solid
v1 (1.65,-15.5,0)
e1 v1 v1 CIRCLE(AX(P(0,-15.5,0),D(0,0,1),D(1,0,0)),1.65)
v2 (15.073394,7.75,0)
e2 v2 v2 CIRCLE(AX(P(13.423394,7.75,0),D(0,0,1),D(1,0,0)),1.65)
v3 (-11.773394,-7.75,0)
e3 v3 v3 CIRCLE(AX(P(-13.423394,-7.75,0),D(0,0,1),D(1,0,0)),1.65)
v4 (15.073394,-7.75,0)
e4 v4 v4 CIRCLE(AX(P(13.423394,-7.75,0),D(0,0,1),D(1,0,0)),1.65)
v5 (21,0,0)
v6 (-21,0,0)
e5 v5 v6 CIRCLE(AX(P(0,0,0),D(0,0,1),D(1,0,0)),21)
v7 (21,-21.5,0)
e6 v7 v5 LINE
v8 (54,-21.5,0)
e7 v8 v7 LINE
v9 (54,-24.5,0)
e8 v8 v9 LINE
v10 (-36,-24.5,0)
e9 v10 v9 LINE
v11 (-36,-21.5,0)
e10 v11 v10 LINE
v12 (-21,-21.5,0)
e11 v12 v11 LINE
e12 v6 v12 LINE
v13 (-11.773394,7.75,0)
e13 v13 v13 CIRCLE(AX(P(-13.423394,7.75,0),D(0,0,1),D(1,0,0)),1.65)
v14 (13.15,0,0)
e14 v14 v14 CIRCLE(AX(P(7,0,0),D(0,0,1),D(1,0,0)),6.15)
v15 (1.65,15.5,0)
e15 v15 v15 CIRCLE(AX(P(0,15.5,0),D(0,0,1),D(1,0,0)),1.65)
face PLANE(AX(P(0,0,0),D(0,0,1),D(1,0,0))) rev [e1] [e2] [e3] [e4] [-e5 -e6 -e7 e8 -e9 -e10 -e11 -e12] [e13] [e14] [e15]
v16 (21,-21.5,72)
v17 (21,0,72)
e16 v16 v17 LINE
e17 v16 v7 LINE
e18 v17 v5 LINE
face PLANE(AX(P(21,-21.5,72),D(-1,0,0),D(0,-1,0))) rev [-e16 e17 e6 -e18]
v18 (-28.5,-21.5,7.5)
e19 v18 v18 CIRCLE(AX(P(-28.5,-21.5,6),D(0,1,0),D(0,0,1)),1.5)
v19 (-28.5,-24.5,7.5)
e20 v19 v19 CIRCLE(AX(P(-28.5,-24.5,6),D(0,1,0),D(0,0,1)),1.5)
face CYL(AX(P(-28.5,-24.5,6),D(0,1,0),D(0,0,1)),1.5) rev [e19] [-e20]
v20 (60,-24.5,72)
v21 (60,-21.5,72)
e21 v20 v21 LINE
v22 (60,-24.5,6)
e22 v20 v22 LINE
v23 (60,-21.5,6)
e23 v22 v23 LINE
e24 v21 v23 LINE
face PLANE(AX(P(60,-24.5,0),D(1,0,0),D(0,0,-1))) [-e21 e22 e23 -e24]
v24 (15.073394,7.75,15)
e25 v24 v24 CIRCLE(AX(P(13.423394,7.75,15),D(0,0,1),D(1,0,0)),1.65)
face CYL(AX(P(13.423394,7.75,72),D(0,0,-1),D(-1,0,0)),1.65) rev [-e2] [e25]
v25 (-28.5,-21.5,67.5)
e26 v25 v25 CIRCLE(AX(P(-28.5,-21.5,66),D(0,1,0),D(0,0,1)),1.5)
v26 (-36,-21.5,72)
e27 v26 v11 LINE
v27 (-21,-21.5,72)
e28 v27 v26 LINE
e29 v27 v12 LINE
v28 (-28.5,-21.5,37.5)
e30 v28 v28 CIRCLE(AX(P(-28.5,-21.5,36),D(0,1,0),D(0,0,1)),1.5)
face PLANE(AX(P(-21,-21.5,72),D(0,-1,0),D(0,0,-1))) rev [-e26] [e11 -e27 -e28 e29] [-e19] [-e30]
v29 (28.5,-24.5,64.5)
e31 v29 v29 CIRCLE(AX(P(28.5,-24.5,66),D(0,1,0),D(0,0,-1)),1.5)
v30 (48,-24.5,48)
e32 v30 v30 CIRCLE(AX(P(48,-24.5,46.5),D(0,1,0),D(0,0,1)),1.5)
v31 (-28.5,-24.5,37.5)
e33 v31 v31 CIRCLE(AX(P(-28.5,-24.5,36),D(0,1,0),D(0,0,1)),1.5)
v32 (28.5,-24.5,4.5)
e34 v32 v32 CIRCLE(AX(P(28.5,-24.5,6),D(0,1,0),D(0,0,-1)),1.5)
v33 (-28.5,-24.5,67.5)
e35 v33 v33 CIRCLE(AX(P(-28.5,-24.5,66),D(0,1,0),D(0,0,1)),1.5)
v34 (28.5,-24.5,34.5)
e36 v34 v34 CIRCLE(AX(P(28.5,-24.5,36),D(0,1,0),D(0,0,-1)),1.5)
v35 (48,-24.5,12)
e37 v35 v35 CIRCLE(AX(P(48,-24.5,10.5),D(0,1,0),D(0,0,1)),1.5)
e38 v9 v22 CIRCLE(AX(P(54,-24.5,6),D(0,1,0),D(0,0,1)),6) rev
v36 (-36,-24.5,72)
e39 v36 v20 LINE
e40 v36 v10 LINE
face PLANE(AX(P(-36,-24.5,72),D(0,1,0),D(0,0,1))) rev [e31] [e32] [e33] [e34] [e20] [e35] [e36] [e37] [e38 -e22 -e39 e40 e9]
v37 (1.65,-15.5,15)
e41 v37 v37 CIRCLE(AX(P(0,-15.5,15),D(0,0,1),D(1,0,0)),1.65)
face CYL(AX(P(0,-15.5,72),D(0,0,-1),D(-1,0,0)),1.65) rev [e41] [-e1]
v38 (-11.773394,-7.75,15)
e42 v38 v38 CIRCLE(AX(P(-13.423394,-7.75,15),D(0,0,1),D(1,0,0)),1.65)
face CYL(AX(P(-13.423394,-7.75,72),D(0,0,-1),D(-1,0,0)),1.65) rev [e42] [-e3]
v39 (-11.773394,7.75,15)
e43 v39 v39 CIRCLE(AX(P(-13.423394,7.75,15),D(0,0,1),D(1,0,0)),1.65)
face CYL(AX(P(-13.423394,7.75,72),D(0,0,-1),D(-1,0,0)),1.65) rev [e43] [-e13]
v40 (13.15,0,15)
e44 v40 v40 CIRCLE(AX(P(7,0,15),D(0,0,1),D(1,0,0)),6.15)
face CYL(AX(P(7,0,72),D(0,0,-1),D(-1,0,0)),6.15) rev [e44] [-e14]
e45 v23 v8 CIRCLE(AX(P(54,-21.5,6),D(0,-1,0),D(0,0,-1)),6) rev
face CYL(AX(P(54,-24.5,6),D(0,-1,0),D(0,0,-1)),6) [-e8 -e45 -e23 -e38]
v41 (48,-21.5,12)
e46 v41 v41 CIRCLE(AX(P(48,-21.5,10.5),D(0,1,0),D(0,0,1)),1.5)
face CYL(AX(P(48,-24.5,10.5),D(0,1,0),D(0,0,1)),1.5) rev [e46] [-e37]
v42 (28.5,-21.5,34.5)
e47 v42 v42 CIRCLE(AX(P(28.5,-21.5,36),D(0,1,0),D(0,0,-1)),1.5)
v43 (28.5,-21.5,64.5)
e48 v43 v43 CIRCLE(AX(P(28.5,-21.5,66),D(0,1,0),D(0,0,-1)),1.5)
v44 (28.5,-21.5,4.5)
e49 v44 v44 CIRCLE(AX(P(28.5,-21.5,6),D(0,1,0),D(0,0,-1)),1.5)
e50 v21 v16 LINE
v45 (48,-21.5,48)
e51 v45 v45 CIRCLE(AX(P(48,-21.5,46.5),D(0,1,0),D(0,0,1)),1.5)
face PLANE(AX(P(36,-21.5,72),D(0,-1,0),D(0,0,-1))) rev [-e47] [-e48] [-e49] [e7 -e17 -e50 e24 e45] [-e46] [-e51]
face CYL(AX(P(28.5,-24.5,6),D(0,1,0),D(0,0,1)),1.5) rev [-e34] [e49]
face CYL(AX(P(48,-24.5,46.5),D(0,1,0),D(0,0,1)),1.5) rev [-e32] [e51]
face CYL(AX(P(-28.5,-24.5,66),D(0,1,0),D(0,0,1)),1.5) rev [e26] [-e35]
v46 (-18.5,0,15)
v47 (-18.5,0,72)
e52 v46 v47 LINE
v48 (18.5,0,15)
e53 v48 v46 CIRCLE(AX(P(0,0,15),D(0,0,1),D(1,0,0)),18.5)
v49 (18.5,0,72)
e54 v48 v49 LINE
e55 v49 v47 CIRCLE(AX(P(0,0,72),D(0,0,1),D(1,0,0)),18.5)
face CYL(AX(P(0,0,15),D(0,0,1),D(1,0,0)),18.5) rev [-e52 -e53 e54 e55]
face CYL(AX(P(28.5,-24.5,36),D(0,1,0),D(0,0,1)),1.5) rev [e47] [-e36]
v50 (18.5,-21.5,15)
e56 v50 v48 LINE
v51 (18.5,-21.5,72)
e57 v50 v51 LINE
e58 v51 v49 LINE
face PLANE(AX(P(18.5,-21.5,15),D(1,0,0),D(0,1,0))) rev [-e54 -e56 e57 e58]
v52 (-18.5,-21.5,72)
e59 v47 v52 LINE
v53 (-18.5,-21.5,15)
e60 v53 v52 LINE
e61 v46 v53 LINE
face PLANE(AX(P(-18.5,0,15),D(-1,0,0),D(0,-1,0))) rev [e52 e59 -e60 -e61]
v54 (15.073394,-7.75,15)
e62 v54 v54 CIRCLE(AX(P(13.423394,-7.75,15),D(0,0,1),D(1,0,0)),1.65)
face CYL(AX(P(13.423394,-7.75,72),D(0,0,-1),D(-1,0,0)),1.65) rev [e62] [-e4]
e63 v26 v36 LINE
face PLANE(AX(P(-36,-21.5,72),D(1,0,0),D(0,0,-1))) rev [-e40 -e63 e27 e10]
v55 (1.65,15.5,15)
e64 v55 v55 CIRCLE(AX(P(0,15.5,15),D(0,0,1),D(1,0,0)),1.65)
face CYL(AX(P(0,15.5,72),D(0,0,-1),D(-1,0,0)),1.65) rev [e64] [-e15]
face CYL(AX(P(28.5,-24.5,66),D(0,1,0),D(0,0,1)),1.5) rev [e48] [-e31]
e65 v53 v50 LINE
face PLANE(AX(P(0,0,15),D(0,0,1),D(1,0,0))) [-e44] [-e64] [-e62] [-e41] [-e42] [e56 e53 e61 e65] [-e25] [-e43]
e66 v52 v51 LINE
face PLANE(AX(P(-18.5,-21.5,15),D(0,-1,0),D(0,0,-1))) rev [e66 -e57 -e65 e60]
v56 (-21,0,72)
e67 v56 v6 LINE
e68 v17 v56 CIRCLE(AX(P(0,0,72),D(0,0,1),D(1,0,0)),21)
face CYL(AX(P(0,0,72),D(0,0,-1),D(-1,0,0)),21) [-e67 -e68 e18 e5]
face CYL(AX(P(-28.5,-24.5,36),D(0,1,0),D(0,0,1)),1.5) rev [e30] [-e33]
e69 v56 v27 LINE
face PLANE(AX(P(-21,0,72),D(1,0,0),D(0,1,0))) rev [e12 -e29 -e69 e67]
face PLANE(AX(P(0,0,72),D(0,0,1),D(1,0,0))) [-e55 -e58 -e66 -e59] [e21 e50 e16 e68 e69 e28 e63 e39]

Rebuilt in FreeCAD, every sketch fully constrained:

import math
import FreeCAD as App
import Part
import Sketcher
from FreeCAD import Vector


def edges_at(feature, points):
    """Names of the edges that pass closest to the given points."""
    edges = feature.Shape.Edges
    near = lambda p: min(range(len(edges)), key=lambda i: edges[i].distToShape(Part.Vertex(*p))[0])
    return sorted({f"Edge{near(p) + 1}" for p in points})


def add_polygon(sketch, points):
    """Adds a closed chain of lines whose ends are joined by coincident constraints."""
    first, n = sketch.GeometryCount, len(points)
    for a, b in zip(points, points[1:] + points[:1]):
        sketch.addGeometry(Part.LineSegment(App.Vector(*a, 0), App.Vector(*b, 0)), False)
    for i in range(n):
        sketch.addConstraint(Sketcher.Constraint("Coincident", first + i, 2, first + (i + 1) % n, 1))

doc = App.newDocument("Part")
params = doc.addObject("Spreadsheet::Sheet", "Params")
for row, (alias, value) in enumerate([
    ("sketch1_radius", "21 mm"),
    ("sketch1_diameter", "3.3 mm"),
    ("sketch1_diameter2", "12.3 mm"),
    ("sketch1_width", "15 mm"),
    ("sketch1_height", "3 mm"),
    ("pad1_length", "72 mm"),
    ("sketch2_radius", "18.5 mm"),
    ("sketch2_height", "21.5 mm"),
    ("pocket1_length", "57 mm"),
    ("sketch3_diameter", "3 mm"),
    ("sketch4_diameter", "3 mm"),
    ("sketch4_width", "24 mm"),
    ("sketch4_height", "72 mm"),
    ("pad2_length", "3 mm"),
    ("fillet_radius", "6 mm"),
], start=1):
    params.set(f"A{row}", alias)
    params.set(f"B{row}", "=" + value)
    params.setAlias(f"B{row}", alias)

body = doc.addObject("PartDesign::Body", "Body")

sketch1 = doc.addObject("Sketcher::SketchObject", "Sketch")
body.addObject(sketch1)
sketch1.AttachmentSupport = (doc.XY_Plane, [""])
sketch1.MapMode = "FlatFace"
sketch1.addGeometry([
    Part.LineSegment(Vector(-21, 0, 0), Vector(-21, -21.5, 0)),
    Part.LineSegment(Vector(-21, -21.5, 0), Vector(-36, -21.5, 0)),
    Part.LineSegment(Vector(-36, -21.5, 0), Vector(-36, -24.5, 0)),
    Part.LineSegment(Vector(-36, -24.5, 0), Vector(36, -24.5, 0)),
    Part.LineSegment(Vector(36, -24.5, 0), Vector(36, -21.5, 0)),
    Part.LineSegment(Vector(36, -21.5, 0), Vector(21, -21.5, 0)),
    Part.LineSegment(Vector(21, -21.5, 0), Vector(21, 0, 0)),
    Part.ArcOfCircle(Part.Circle(Vector(0, 0, 0), Vector(0, 0, 1), 21), math.radians(0), math.radians(180)),
    Part.Circle(Vector(-13.4, -7.8, 0), Vector(0, 0, 1), 1.6),
    Part.Circle(Vector(0, -15.5, 0), Vector(0, 0, 1), 1.6),
    Part.Circle(Vector(13.4, -7.8, 0), Vector(0, 0, 1), 1.6),
    Part.Circle(Vector(-13.4, 7.8, 0), Vector(0, 0, 1), 1.6),
    Part.Circle(Vector(7, 0, 0), Vector(0, 0, 1), 6.2),
    Part.Circle(Vector(13.4, 7.8, 0), Vector(0, 0, 1), 1.6),
    Part.Circle(Vector(0, 15.5, 0), Vector(0, 0, 1), 1.6),
], False)
sketch1.addConstraint([
    Sketcher.Constraint("Coincident", 0, 2, 1, 1),
    Sketcher.Constraint("Coincident", 1, 2, 2, 1),
    Sketcher.Constraint("Coincident", 2, 2, 3, 1),
    Sketcher.Constraint("Coincident", 3, 2, 4, 1),
    Sketcher.Constraint("Coincident", 4, 2, 5, 1),
    Sketcher.Constraint("Coincident", 5, 2, 6, 1),
    Sketcher.Constraint("Tangent", 6, 2, 7, 1),
    Sketcher.Constraint("Tangent", 7, 2, 0, 1),
    Sketcher.Constraint("Vertical", 0),
    Sketcher.Constraint("Horizontal", 1),
    Sketcher.Constraint("Vertical", 2),
    Sketcher.Constraint("Horizontal", 3),
    Sketcher.Constraint("Vertical", 4),
    Sketcher.Constraint("Horizontal", 5),
    Sketcher.Constraint("Vertical", 6),
    Sketcher.Constraint("Coincident", 7, 3, -1, 1),
    Sketcher.Constraint("Equal", 8, 9),
    Sketcher.Constraint("Equal", 9, 10),
    Sketcher.Constraint("Equal", 10, 11),
    Sketcher.Constraint("Equal", 11, 13),
    Sketcher.Constraint("Equal", 13, 14),
    Sketcher.Constraint("Symmetric", 10, 3, 11, 3, -1, 1),
    Sketcher.Constraint("Symmetric", 8, 3, 13, 3, -1, 1),
    Sketcher.Constraint("Symmetric", 9, 3, 14, 3, -1, 1),
    Sketcher.Constraint("Symmetric", 8, 3, 10, 3, -2),
    Sketcher.Constraint("Symmetric", 1, 2, 4, 2, -2),
    Sketcher.Constraint("PointOnObject", 9, 3, -2),
    Sketcher.Constraint("PointOnObject", 12, 3, -1),
    Sketcher.Constraint("Radius", 7, 21.0),
    Sketcher.Constraint("Diameter", 8, 3.3),
    Sketcher.Constraint("Diameter", 12, 12.3),
    Sketcher.Constraint("DistanceX", 1, 2, 1, 1, 15.0),
    Sketcher.Constraint("DistanceY", 2, 2, 2, 1, 3.0),
    Sketcher.Constraint("DistanceY", 0, 2, 0, 1, 21.5),
    Sketcher.Constraint("DistanceX", -1, 1, 12, 3, 7.0),
    Sketcher.Constraint("DistanceY", 0, 2, 9, 3, 6.0),
    Sketcher.Constraint("DistanceY", 8, 3, 11, 3, 15.5),
    Sketcher.Constraint("DistanceX", 8, 3, -1, 1, 13.423394),
])
sketch1.setExpression("Constraints[28]", "Params.sketch1_radius")
sketch1.setExpression("Constraints[29]", "Params.sketch1_diameter")
sketch1.setExpression("Constraints[30]", "Params.sketch1_diameter2")
sketch1.setExpression("Constraints[31]", "Params.sketch1_width")
sketch1.setExpression("Constraints[32]", "Params.sketch1_height")
pad1 = doc.addObject("PartDesign::Pad", "Pad")
body.addObject(pad1)
pad1.Profile = sketch1
pad1.setExpression("Length", "Params.pad1_length")

sketch2 = doc.addObject("Sketcher::SketchObject", "Sketch001")
body.addObject(sketch2)
sketch2.AttachmentSupport = (doc.XY_Plane, [""])
sketch2.MapMode = "FlatFace"
sketch2.AttachmentOffset = App.Placement(Vector(0, 0, 72), App.Rotation())
sketch2.addGeometry([
    Part.LineSegment(Vector(-18, 0, 0), Vector(-18, -22, 0)),
    Part.LineSegment(Vector(-18, -22, 0), Vector(18, -22, 0)),
    Part.LineSegment(Vector(18, -22, 0), Vector(18, 0, 0)),
    Part.ArcOfCircle(Part.Circle(Vector(0, 0, 0), Vector(0, 0, 1), 18), math.radians(0), math.radians(180)),
], False)
sketch2.addConstraint([
    Sketcher.Constraint("Coincident", 0, 2, 1, 1),
    Sketcher.Constraint("Coincident", 1, 2, 2, 1),
    Sketcher.Constraint("Tangent", 2, 2, 3, 1),
    Sketcher.Constraint("Tangent", 3, 2, 0, 1),
    Sketcher.Constraint("Vertical", 0),
    Sketcher.Constraint("Horizontal", 1),
    Sketcher.Constraint("Vertical", 2),
    Sketcher.Constraint("Coincident", 3, 3, -1, 1),
    Sketcher.Constraint("Radius", 3, 18.5),
    Sketcher.Constraint("DistanceY", 0, 2, 0, 1, 21.5),
])
sketch2.setExpression("Constraints[8]", "Params.sketch2_radius")
sketch2.setExpression("Constraints[9]", "Params.sketch2_height")
pocket1 = doc.addObject("PartDesign::Pocket", "Pocket")
body.addObject(pocket1)
pocket1.Profile = sketch2
pocket1.setExpression("Length", "Params.pocket1_length")

sketch3 = doc.addObject("Sketcher::SketchObject", "Sketch002")
body.addObject(sketch3)
sketch3.AttachmentSupport = (doc.XZ_Plane, [""])
sketch3.MapMode = "FlatFace"
sketch3.AttachmentOffset = App.Placement(Vector(0, 0, 21.5), App.Rotation())
sketch3.addGeometry([
    Part.Circle(Vector(-28.5, 36, 0), Vector(0, 0, 1), 1.5),
    Part.Circle(Vector(-28.5, 6, 0), Vector(0, 0, 1), 1.5),
    Part.Circle(Vector(-28.5, 66, 0), Vector(0, 0, 1), 1.5),
    Part.Circle(Vector(28.5, 66, 0), Vector(0, 0, 1), 1.5),
    Part.Circle(Vector(28.5, 6, 0), Vector(0, 0, 1), 1.5),
    Part.Circle(Vector(28.5, 36, 0), Vector(0, 0, 1), 1.5),
], False)
sketch3.addConstraint([
    Sketcher.Constraint("Equal", 0, 1),
    Sketcher.Constraint("Equal", 1, 2),
    Sketcher.Constraint("Equal", 2, 3),
    Sketcher.Constraint("Equal", 3, 4),
    Sketcher.Constraint("Equal", 4, 5),
    Sketcher.Constraint("Symmetric", 2, 3, 3, 3, -2),
    Sketcher.Constraint("Symmetric", 1, 3, 4, 3, -2),
    Sketcher.Constraint("Symmetric", 0, 3, 5, 3, -2),
    Sketcher.Constraint("Vertical", 0, 3, 1, 3),
    Sketcher.Constraint("Vertical", 1, 3, 2, 3),
    Sketcher.Constraint("Diameter", 0, 3.0),
    Sketcher.Constraint("DistanceY", -1, 1, 0, 3, 36.0),
    Sketcher.Constraint("DistanceY", -1, 1, 1, 3, 6.0),
    Sketcher.Constraint("DistanceY", -1, 1, 2, 3, 66.0),
    Sketcher.Constraint("DistanceX", 2, 3, 3, 3, 57.0),
])
sketch3.setExpression("Constraints[10]", "Params.sketch3_diameter")
pocket2 = doc.addObject("PartDesign::Pocket", "Pocket001")
body.addObject(pocket2)
pocket2.Profile = sketch3
pocket2.Type = "ThroughAll"
pocket2.Reversed = True

sketch4 = doc.addObject("Sketcher::SketchObject", "Sketch003")
body.addObject(sketch4)
sketch4.AttachmentSupport = (doc.XZ_Plane, [""])
sketch4.MapMode = "FlatFace"
sketch4.AttachmentOffset = App.Placement(Vector(0, 0, 21.5), App.Rotation())
add_polygon(sketch4, [(36, 0), (36, 72), (60, 72), (60, 0)])
sketch4.addGeometry(Part.Circle(Vector(48, 46.5, 0), Vector(0, 0, 1), 1.5), False)
sketch4.addGeometry(Part.Circle(Vector(48, 10.5, 0), Vector(0, 0, 1), 1.5), False)
sketch4.addConstraint([
    Sketcher.Constraint("Vertical", 0),
    Sketcher.Constraint("Horizontal", 1),
    Sketcher.Constraint("Vertical", 2),
    Sketcher.Constraint("Horizontal", 3),
    Sketcher.Constraint("Equal", 4, 5),
    Sketcher.Constraint("PointOnObject", 2, 2, -1),
    Sketcher.Constraint("Vertical", 4, 3, 5, 3),
    Sketcher.Constraint("Diameter", 4, 3.0),
    Sketcher.Constraint("DistanceX", 1, 1, 1, 2, 24.0),
    Sketcher.Constraint("DistanceY", 0, 1, 0, 2, 72.0),
    Sketcher.Constraint("DistanceX", -1, 1, 4, 3, 48.0),
    Sketcher.Constraint("DistanceX", -1, 1, 0, 2, 36.0),
    Sketcher.Constraint("DistanceY", 5, 3, 4, 3, 36.0),
    Sketcher.Constraint("DistanceY", -1, 1, 4, 3, 46.5),
])
sketch4.setExpression("Constraints[11]", "Params.sketch4_diameter")
sketch4.setExpression("Constraints[12]", "Params.sketch4_width")
sketch4.setExpression("Constraints[13]", "Params.sketch4_height")
pad2 = doc.addObject("PartDesign::Pad", "Pad001")
body.addObject(pad2)
pad2.Profile = sketch4
pad2.setExpression("Length", "Params.pad2_length")
doc.recompute()

fillet = doc.addObject("PartDesign::Fillet", "Fillet")
body.addObject(fillet)
fillet.Base = (pad2, edges_at(pad2, [(60, -23, 0)]))
fillet.setExpression("Radius", "Params.fillet_radius")

doc.recompute()
